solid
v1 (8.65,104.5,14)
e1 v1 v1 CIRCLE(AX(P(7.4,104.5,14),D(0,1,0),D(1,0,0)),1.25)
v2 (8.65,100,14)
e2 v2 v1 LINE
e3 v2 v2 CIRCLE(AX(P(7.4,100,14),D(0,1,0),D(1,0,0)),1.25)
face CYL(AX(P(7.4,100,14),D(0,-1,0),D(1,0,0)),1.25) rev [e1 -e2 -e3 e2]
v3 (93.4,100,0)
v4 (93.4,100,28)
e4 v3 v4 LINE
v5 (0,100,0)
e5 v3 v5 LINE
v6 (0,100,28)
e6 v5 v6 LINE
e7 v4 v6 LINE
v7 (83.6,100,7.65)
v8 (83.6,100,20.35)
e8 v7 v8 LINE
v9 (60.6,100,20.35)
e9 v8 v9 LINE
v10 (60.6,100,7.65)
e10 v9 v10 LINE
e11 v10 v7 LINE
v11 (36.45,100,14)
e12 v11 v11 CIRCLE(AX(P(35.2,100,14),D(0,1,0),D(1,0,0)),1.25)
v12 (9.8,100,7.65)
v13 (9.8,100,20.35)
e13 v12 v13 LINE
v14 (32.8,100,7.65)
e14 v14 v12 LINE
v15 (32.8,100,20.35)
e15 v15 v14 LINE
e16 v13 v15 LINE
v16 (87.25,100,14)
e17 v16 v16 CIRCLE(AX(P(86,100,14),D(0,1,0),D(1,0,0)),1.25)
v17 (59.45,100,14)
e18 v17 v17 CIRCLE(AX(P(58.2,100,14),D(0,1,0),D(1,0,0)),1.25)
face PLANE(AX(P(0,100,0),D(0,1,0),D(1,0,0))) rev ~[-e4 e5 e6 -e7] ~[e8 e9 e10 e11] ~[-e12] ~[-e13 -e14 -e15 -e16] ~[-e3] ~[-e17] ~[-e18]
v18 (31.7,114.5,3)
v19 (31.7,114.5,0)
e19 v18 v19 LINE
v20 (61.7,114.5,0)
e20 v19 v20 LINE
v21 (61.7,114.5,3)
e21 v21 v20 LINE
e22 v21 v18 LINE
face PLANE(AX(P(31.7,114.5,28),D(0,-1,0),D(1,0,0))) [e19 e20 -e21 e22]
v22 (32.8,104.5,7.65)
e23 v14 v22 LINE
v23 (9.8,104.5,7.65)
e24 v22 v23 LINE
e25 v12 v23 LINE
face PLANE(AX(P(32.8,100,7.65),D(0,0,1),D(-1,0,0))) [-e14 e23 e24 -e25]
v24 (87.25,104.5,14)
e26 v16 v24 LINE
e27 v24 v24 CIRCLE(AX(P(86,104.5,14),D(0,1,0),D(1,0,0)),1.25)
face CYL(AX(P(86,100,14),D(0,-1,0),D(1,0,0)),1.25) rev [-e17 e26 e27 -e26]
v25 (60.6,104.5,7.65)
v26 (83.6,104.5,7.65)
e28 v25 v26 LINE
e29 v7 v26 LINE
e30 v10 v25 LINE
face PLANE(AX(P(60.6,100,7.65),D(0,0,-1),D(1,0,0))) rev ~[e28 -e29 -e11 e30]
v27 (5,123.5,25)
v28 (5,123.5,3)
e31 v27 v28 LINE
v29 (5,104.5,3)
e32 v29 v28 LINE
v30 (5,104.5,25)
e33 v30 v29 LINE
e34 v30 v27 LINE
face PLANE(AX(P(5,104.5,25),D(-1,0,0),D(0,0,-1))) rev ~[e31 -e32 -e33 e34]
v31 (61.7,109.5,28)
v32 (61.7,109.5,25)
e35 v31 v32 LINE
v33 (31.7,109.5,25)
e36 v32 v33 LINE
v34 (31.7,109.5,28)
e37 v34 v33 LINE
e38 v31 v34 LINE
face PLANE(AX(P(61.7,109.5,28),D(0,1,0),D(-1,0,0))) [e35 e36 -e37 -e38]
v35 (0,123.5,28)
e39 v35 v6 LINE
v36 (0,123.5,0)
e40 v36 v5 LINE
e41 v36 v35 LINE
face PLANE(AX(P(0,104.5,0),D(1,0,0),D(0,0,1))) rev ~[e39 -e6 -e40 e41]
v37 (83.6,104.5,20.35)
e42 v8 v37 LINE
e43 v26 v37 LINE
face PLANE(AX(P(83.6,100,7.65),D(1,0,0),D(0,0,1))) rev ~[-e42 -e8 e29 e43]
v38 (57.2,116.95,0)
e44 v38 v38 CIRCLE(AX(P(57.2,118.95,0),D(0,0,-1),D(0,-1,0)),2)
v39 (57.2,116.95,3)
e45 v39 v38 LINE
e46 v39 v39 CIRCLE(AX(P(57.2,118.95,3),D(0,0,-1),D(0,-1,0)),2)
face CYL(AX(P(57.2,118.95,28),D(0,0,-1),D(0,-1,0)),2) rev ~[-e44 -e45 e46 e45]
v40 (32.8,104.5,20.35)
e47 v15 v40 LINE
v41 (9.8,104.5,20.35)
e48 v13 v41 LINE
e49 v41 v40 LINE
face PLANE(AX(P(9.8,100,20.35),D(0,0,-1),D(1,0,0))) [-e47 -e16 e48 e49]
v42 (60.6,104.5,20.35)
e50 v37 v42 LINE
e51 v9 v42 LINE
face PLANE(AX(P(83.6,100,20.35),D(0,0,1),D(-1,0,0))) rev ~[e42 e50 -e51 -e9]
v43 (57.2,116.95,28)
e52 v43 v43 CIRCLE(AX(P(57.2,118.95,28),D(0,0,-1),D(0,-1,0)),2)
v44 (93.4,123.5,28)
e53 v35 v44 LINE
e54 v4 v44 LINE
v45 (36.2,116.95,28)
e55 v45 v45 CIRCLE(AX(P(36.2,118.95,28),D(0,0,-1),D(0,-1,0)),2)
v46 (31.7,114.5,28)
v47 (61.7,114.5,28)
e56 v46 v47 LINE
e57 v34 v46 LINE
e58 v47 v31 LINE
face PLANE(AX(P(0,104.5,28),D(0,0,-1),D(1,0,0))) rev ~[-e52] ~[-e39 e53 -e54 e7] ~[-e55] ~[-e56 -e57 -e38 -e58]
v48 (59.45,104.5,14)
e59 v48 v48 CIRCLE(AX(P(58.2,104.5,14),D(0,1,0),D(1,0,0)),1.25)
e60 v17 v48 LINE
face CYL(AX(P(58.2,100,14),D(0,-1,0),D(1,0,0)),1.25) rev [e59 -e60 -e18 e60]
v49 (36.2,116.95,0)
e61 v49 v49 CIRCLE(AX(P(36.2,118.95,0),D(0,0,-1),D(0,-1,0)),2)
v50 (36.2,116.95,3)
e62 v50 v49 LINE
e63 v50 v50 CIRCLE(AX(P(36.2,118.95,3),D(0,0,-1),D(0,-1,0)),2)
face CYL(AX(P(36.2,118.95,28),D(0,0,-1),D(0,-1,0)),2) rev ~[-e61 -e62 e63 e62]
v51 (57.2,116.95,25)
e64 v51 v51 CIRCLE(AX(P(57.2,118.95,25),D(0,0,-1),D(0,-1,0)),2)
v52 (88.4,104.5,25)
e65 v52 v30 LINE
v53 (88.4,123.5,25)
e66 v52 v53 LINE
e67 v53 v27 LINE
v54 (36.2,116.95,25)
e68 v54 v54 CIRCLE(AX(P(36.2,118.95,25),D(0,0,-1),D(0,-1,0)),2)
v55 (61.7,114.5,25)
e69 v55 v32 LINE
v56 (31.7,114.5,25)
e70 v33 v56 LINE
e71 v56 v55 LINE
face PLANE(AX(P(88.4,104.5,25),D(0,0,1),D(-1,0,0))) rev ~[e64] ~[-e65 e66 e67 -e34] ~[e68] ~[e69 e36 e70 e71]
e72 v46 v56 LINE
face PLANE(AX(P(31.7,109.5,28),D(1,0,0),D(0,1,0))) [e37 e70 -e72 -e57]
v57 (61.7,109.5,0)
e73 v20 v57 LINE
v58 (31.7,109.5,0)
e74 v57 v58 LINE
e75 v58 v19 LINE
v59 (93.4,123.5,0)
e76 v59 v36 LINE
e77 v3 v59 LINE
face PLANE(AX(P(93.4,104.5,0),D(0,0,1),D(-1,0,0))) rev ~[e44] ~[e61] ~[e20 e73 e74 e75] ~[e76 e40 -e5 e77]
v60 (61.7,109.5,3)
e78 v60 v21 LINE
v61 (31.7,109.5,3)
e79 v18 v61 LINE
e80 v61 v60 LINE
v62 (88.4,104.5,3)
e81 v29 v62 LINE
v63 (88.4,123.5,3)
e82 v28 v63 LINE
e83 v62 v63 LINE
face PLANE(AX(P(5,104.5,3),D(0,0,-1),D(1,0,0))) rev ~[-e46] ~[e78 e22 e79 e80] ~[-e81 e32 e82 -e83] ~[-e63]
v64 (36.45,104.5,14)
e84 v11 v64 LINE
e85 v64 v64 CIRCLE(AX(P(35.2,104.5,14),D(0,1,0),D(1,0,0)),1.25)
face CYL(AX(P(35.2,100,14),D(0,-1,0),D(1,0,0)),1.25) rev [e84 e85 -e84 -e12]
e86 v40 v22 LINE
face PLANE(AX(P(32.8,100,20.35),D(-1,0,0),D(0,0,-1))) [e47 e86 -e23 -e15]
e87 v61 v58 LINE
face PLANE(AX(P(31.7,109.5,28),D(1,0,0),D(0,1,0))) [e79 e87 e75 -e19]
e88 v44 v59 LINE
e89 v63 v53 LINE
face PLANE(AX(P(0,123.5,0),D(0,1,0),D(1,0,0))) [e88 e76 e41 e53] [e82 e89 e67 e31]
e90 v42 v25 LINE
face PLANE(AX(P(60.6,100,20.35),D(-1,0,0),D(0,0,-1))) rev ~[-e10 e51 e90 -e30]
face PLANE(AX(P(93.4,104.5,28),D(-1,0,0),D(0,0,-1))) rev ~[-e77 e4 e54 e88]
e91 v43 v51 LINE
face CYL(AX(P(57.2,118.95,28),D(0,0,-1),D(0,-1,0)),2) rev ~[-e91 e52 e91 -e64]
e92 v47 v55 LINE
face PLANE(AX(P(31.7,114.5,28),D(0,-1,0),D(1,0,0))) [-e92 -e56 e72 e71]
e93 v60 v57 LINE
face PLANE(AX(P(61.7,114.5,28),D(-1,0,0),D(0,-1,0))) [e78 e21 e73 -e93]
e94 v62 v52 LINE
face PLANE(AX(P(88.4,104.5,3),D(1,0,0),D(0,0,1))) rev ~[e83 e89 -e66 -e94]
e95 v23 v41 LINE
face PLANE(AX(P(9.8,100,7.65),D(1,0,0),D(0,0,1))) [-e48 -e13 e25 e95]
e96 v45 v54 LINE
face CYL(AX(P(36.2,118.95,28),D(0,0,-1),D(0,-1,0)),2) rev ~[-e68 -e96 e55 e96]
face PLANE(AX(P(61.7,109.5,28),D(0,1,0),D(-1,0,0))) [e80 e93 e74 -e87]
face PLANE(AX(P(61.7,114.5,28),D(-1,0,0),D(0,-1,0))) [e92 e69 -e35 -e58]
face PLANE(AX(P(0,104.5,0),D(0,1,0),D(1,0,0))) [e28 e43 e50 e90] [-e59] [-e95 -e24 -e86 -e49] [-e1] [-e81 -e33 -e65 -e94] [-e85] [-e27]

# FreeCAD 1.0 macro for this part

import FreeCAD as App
import Part
import Sketcher
from FreeCAD import Vector
Q = App.Units.Quantity

doc = App.newDocument("Part")
body = doc.addObject("PartDesign::Body", "Body")

# Sketch on XY plane
sketch1 = body.newObject("Sketcher::SketchObject", "Sketch")
sketch1.AttachmentSupport = (doc.getObject("XY_Plane"), [""])
sketch1.MapMode = "FlatFace"
sketch1.addGeometry([
    Part.LineSegment(Vector(0, 100, 0), Vector(0, 0, 0)),
    Part.LineSegment(Vector(0, 0, 0), Vector(93, 0, 0)),
    Part.LineSegment(Vector(93, 0, 0), Vector(93, 100, 0)),
    Part.LineSegment(Vector(93, 100, 0), Vector(0, 100, 0)),
], False)
sketch1.addConstraint([
    Sketcher.Constraint("Coincident", 0, 2, 1, 1),
    Sketcher.Constraint("Coincident", 1, 2, 2, 1),
    Sketcher.Constraint("Coincident", 2, 2, 3, 1),
    Sketcher.Constraint("Coincident", 3, 2, 0, 1),
    Sketcher.Constraint("Vertical", 0),
    Sketcher.Constraint("Horizontal", 1),
    Sketcher.Constraint("Vertical", 2),
    Sketcher.Constraint("Horizontal", 3),
    Sketcher.Constraint("Coincident", 0, 2, -1, 1),
    Sketcher.Constraint("DistanceY", 0, 2, 0, 1, Q("100 mm")),
    Sketcher.Constraint("DistanceX", 1, 1, 1, 2, Q("93.4 mm")),
])
pad1 = body.newObject("PartDesign::Pad", "Pad")
pad1.Profile = sketch1
pad1.Length = 3

# Sketch on XZ plane
sketch2 = body.newObject("Sketcher::SketchObject", "Sketch001")
sketch2.AttachmentSupport = (doc.getObject("XZ_Plane"), [""])
sketch2.MapMode = "FlatFace"
sketch2.AttachmentOffset = App.Placement(Vector(0, 0, -100), App.Rotation())
sketch2.addGeometry([
    Part.LineSegment(Vector(93.4, 0, 0), Vector(0, 0, 0)),  # 0
    Part.LineSegment(Vector(0, 0, 0), Vector(0, 28, 0)),  # 1
    Part.LineSegment(Vector(0, 28, 0), Vector(93.4, 28, 0)),  # 2
    Part.LineSegment(Vector(93.4, 28, 0), Vector(93.4, 0, 0)),  # 3
    Part.Circle(Vector(86, 14, 0), Vector(0, 0, 1), 1.2),  # 4
    Part.Circle(Vector(7.4, 14, 0), Vector(0, 0, 1), 1.2),  # 5
    Part.LineSegment(Vector(9.8, 7.7, 0), Vector(32.8, 7.7, 0)),  # 6
    Part.LineSegment(Vector(32.8, 7.7, 0), Vector(32.8, 20.4, 0)),  # 7
    Part.LineSegment(Vector(32.8, 20.4, 0), Vector(9.8, 20.4, 0)),  # 8
    Part.LineSegment(Vector(9.8, 20.4, 0), Vector(9.8, 7.7, 0)),  # 9
    Part.Circle(Vector(35.2, 14, 0), Vector(0, 0, 1), 1.2),  # 10
    Part.Circle(Vector(58.2, 14, 0), Vector(0, 0, 1), 1.2),  # 11
    Part.LineSegment(Vector(83.6, 7.7, 0), Vector(83.6, 20.4, 0)),  # 12
    Part.LineSegment(Vector(83.6, 20.4, 0), Vector(60.6, 20.4, 0)),  # 13
    Part.LineSegment(Vector(60.6, 20.4, 0), Vector(60.6, 7.7, 0)),  # 14
    Part.LineSegment(Vector(60.6, 7.7, 0), Vector(83.6, 7.7, 0)),  # 15
], False)
sketch2.addConstraint([
    Sketcher.Constraint("Coincident", 0, 2, 1, 1),
    Sketcher.Constraint("Coincident", 1, 2, 2, 1),
    Sketcher.Constraint("Coincident", 2, 2, 3, 1),
    Sketcher.Constraint("Coincident", 3, 2, 0, 1),
    Sketcher.Constraint("Coincident", 6, 2, 7, 1),
    Sketcher.Constraint("Coincident", 7, 2, 8, 1),
    Sketcher.Constraint("Coincident", 8, 2, 9, 1),
    Sketcher.Constraint("Coincident", 9, 2, 6, 1),
    Sketcher.Constraint("Coincident", 12, 2, 13, 1),
    Sketcher.Constraint("Coincident", 13, 2, 14, 1),
    Sketcher.Constraint("Coincident", 14, 2, 15, 1),
    Sketcher.Constraint("Coincident", 15, 2, 12, 1),
    Sketcher.Constraint("Horizontal", 0),
    Sketcher.Constraint("Vertical", 1),
    Sketcher.Constraint("Horizontal", 2),
    Sketcher.Constraint("Vertical", 3),
    Sketcher.Constraint("Horizontal", 6),
    Sketcher.Constraint("Vertical", 7),
    Sketcher.Constraint("Horizontal", 8),
    Sketcher.Constraint("Vertical", 9),
    Sketcher.Constraint("Vertical", 12),
    Sketcher.Constraint("Horizontal", 13),
    Sketcher.Constraint("Vertical", 14),
    Sketcher.Constraint("Horizontal", 15),
    Sketcher.Constraint("Coincident", 0, 2, -1, 1),
    Sketcher.Constraint("Equal", 4, 5),
    Sketcher.Constraint("Equal", 5, 10),
    Sketcher.Constraint("Equal", 10, 11),
    Sketcher.Constraint("Horizontal", 4, 3, 5, 3),
    Sketcher.Constraint("Horizontal", 5, 3, 10, 3),
    Sketcher.Constraint("Horizontal", 10, 3, 11, 3),
    Sketcher.Constraint("Horizontal", 8, 2, 12, 2),
    Sketcher.Constraint("Horizontal", 9, 2, 14, 2),
    Sketcher.Constraint("Equal", 8, 13),
    Sketcher.Constraint("Diameter", 4, Q("2.5 mm")),
    Sketcher.Constraint("DistanceX", 6, 1, 6, 2, Q("23 mm")),
    Sketcher.Constraint("DistanceY", 1, 1, 1, 2, Q("28 mm")),
    Sketcher.Constraint("DistanceY", 7, 1, 7, 2, Q("12.7 mm")),
    Sketcher.Constraint("DistanceX", 10, 3, 11, 3, Q("23 mm")),
    Sketcher.Constraint("DistanceX", -1, 1, 8, 2, Q("9.8 mm")),
    Sketcher.Constraint("DistanceX", 12, 2, 2, 2, Q("9.8 mm")),
    Sketcher.Constraint("DistanceY", -1, 1, 6, 2, Q("7.65 mm")),
    Sketcher.Constraint("DistanceX", 0, 2, 0, 1, Q("93.4 mm")),
    Sketcher.Constraint("DistanceX", -1, 1, 4, 3, Q("86 mm")),
    Sketcher.Constraint("DistanceY", -1, 1, 4, 3, Q("14 mm")),
    Sketcher.Constraint("DistanceX", 5, 3, 2, 2, Q("86 mm")),
    Sketcher.Constraint("DistanceX", -1, 1, 10, 3, Q("35.2 mm")),
])
pad2 = body.newObject("PartDesign::Pad", "Pad001")
pad2.Profile = sketch2
pad2.Length = 4.5
pad2.Reversed = True

# Sketch on XZ plane
sketch3 = body.newObject("Sketcher::SketchObject", "Sketch002")
sketch3.AttachmentSupport = (doc.getObject("XZ_Plane"), [""])
sketch3.MapMode = "FlatFace"
sketch3.AttachmentOffset = App.Placement(Vector(0, 0, -104.5), App.Rotation())
sketch3.addGeometry([
    Part.LineSegment(Vector(0, 28, 0), Vector(93, 28, 0)),  # 0
    Part.LineSegment(Vector(93, 28, 0), Vector(93, 0, 0)),  # 1
    Part.LineSegment(Vector(93, 0, 0), Vector(0, 0, 0)),  # 2
    Part.LineSegment(Vector(0, 0, 0), Vector(0, 28, 0)),  # 3
    Part.LineSegment(Vector(88, 3, 0), Vector(88, 25, 0)),  # 4
    Part.LineSegment(Vector(88, 25, 0), Vector(5, 25, 0)),  # 5
    Part.LineSegment(Vector(5, 25, 0), Vector(5, 3, 0)),  # 6
    Part.LineSegment(Vector(5, 3, 0), Vector(88, 3, 0)),  # 7
], False)
sketch3.addConstraint([
    Sketcher.Constraint("Coincident", 0, 2, 1, 1),
    Sketcher.Constraint("Coincident", 1, 2, 2, 1),
    Sketcher.Constraint("Coincident", 2, 2, 3, 1),
    Sketcher.Constraint("Coincident", 3, 2, 0, 1),
    Sketcher.Constraint("Coincident", 4, 2, 5, 1),
    Sketcher.Constraint("Coincident", 5, 2, 6, 1),
    Sketcher.Constraint("Coincident", 6, 2, 7, 1),
    Sketcher.Constraint("Coincident", 7, 2, 4, 1),
    Sketcher.Constraint("Horizontal", 0),
    Sketcher.Constraint("Vertical", 1),
    Sketcher.Constraint("Horizontal", 2),
    Sketcher.Constraint("Vertical", 3),
    Sketcher.Constraint("Vertical", 4),
    Sketcher.Constraint("Horizontal", 5),
    Sketcher.Constraint("Vertical", 6),
    Sketcher.Constraint("Horizontal", 7),
    Sketcher.Constraint("Coincident", 2, 2, -1, 1),
    Sketcher.Constraint("DistanceY", 4, 1, 4, 2, Q("22 mm")),
    Sketcher.Constraint("DistanceX", -1, 1, 5, 2, Q("5 mm")),
    Sketcher.Constraint("DistanceX", 4, 2, 0, 2, Q("5 mm")),
    Sketcher.Constraint("DistanceY", 1, 2, 1, 1, Q("28 mm")),
    Sketcher.Constraint("DistanceX", 0, 1, 0, 2, Q("93.4 mm")),
    Sketcher.Constraint("DistanceY", -1, 1, 4, 2, Q("25 mm")),
])
pad3 = body.newObject("PartDesign::Pad", "Pad002")
pad3.Profile = sketch3
pad3.Length = 19
pad3.Reversed = True

# Sketch on XY plane
sketch4 = body.newObject("Sketcher::SketchObject", "Sketch003")
sketch4.AttachmentSupport = (doc.getObject("XY_Plane"), [""])
sketch4.MapMode = "FlatFace"
sketch4.AttachmentOffset = App.Placement(Vector(0, 0, 28), App.Rotation())
sketch4.addGeometry([
    Part.Circle(Vector(36.2, 119, 0), Vector(0, 0, 1), 2),
    Part.Circle(Vector(57.2, 119, 0), Vector(0, 0, 1), 2),
], False)
sketch4.addConstraint([
    Sketcher.Constraint("Equal", 0, 1),
    Sketcher.Constraint("Horizontal", 0, 3, 1, 3),
    Sketcher.Constraint("Diameter", 0, Q("4 mm")),
    Sketcher.Constraint("DistanceX", 0, 3, 1, 3, Q("21 mm")),
    Sketcher.Constraint("DistanceX", -1, 1, 0, 3, Q("36.2 mm")),
    Sketcher.Constraint("DistanceY", -1, 1, 0, 3, Q("118.95 mm")),
])
doc.recompute()
hole = body.newObject("PartDesign::Hole", "Hole")
hole.Profile = sketch4
hole.ThreadType = "None"
hole.Diameter = 4
hole.DepthType = "ThroughAll"

# Sketch on XY plane
sketch5 = body.newObject("Sketcher::SketchObject", "Sketch004")
sketch5.AttachmentSupport = (doc.getObject("XY_Plane"), [""])
sketch5.MapMode = "FlatFace"
sketch5.AttachmentOffset = App.Placement(Vector(0, 0, 28), App.Rotation())
sketch5.addGeometry([
    Part.LineSegment(Vector(32, 110, 0), Vector(62, 110, 0)),
    Part.LineSegment(Vector(62, 110, 0), Vector(62, 114, 0)),
    Part.LineSegment(Vector(62, 114, 0), Vector(32, 114, 0)),
    Part.LineSegment(Vector(32, 114, 0), Vector(32, 110, 0)),
], False)
sketch5.addConstraint([
    Sketcher.Constraint("Coincident", 0, 2, 1, 1),
    Sketcher.Constraint("Coincident", 1, 2, 2, 1),
    Sketcher.Constraint("Coincident", 2, 2, 3, 1),
    Sketcher.Constraint("Coincident", 3, 2, 0, 1),
    Sketcher.Constraint("Horizontal", 0),
    Sketcher.Constraint("Vertical", 1),
    Sketcher.Constraint("Horizontal", 2),
    Sketcher.Constraint("Vertical", 3),
    Sketcher.Constraint("DistanceX", 0, 1, 0, 2, Q("30 mm")),
    Sketcher.Constraint("DistanceY", 1, 1, 1, 2, Q("5 mm")),
    Sketcher.Constraint("DistanceX", -1, 1, 0, 2, Q("61.7 mm")),
    Sketcher.Constraint("DistanceY", -1, 1, 0, 2, Q("109.5 mm")),
])
pocket1 = body.newObject("PartDesign::Pocket", "Pocket")
pocket1.Profile = sketch5
pocket1.Type = "ThroughAll"

# Sketch on XY plane
sketch6 = body.newObject("Sketcher::SketchObject", "Sketch005")
sketch6.AttachmentSupport = (doc.getObject("XY_Plane"), [""])
sketch6.MapMode = "FlatFace"
sketch6.AttachmentOffset = App.Placement(Vector(0, 0, 3), App.Rotation())
sketch6.addGeometry([
    Part.LineSegment(Vector(0, 0, 0), Vector(93, 0, 0)),
    Part.LineSegment(Vector(93, 0, 0), Vector(93, 100, 0)),
    Part.LineSegment(Vector(93, 100, 0), Vector(0, 100, 0)),
    Part.LineSegment(Vector(0, 100, 0), Vector(0, 0, 0)),
], False)
sketch6.addConstraint([
    Sketcher.Constraint("Coincident", 0, 2, 1, 1),
    Sketcher.Constraint("Coincident", 1, 2, 2, 1),
    Sketcher.Constraint("Coincident", 2, 2, 3, 1),
    Sketcher.Constraint("Coincident", 3, 2, 0, 1),
    Sketcher.Constraint("Horizontal", 0),
    Sketcher.Constraint("Vertical", 1),
    Sketcher.Constraint("Horizontal", 2),
    Sketcher.Constraint("Vertical", 3),
    Sketcher.Constraint("Coincident", 3, 2, -1, 1),
    Sketcher.Constraint("DistanceY", 1, 1, 1, 2, Q("100 mm")),
    Sketcher.Constraint("DistanceX", 0, 1, 0, 2, Q("93.4 mm")),
])
pocket2 = body.newObject("PartDesign::Pocket", "Pocket001")
pocket2.Profile = sketch6
pocket2.Length = 10

doc.recompute()
